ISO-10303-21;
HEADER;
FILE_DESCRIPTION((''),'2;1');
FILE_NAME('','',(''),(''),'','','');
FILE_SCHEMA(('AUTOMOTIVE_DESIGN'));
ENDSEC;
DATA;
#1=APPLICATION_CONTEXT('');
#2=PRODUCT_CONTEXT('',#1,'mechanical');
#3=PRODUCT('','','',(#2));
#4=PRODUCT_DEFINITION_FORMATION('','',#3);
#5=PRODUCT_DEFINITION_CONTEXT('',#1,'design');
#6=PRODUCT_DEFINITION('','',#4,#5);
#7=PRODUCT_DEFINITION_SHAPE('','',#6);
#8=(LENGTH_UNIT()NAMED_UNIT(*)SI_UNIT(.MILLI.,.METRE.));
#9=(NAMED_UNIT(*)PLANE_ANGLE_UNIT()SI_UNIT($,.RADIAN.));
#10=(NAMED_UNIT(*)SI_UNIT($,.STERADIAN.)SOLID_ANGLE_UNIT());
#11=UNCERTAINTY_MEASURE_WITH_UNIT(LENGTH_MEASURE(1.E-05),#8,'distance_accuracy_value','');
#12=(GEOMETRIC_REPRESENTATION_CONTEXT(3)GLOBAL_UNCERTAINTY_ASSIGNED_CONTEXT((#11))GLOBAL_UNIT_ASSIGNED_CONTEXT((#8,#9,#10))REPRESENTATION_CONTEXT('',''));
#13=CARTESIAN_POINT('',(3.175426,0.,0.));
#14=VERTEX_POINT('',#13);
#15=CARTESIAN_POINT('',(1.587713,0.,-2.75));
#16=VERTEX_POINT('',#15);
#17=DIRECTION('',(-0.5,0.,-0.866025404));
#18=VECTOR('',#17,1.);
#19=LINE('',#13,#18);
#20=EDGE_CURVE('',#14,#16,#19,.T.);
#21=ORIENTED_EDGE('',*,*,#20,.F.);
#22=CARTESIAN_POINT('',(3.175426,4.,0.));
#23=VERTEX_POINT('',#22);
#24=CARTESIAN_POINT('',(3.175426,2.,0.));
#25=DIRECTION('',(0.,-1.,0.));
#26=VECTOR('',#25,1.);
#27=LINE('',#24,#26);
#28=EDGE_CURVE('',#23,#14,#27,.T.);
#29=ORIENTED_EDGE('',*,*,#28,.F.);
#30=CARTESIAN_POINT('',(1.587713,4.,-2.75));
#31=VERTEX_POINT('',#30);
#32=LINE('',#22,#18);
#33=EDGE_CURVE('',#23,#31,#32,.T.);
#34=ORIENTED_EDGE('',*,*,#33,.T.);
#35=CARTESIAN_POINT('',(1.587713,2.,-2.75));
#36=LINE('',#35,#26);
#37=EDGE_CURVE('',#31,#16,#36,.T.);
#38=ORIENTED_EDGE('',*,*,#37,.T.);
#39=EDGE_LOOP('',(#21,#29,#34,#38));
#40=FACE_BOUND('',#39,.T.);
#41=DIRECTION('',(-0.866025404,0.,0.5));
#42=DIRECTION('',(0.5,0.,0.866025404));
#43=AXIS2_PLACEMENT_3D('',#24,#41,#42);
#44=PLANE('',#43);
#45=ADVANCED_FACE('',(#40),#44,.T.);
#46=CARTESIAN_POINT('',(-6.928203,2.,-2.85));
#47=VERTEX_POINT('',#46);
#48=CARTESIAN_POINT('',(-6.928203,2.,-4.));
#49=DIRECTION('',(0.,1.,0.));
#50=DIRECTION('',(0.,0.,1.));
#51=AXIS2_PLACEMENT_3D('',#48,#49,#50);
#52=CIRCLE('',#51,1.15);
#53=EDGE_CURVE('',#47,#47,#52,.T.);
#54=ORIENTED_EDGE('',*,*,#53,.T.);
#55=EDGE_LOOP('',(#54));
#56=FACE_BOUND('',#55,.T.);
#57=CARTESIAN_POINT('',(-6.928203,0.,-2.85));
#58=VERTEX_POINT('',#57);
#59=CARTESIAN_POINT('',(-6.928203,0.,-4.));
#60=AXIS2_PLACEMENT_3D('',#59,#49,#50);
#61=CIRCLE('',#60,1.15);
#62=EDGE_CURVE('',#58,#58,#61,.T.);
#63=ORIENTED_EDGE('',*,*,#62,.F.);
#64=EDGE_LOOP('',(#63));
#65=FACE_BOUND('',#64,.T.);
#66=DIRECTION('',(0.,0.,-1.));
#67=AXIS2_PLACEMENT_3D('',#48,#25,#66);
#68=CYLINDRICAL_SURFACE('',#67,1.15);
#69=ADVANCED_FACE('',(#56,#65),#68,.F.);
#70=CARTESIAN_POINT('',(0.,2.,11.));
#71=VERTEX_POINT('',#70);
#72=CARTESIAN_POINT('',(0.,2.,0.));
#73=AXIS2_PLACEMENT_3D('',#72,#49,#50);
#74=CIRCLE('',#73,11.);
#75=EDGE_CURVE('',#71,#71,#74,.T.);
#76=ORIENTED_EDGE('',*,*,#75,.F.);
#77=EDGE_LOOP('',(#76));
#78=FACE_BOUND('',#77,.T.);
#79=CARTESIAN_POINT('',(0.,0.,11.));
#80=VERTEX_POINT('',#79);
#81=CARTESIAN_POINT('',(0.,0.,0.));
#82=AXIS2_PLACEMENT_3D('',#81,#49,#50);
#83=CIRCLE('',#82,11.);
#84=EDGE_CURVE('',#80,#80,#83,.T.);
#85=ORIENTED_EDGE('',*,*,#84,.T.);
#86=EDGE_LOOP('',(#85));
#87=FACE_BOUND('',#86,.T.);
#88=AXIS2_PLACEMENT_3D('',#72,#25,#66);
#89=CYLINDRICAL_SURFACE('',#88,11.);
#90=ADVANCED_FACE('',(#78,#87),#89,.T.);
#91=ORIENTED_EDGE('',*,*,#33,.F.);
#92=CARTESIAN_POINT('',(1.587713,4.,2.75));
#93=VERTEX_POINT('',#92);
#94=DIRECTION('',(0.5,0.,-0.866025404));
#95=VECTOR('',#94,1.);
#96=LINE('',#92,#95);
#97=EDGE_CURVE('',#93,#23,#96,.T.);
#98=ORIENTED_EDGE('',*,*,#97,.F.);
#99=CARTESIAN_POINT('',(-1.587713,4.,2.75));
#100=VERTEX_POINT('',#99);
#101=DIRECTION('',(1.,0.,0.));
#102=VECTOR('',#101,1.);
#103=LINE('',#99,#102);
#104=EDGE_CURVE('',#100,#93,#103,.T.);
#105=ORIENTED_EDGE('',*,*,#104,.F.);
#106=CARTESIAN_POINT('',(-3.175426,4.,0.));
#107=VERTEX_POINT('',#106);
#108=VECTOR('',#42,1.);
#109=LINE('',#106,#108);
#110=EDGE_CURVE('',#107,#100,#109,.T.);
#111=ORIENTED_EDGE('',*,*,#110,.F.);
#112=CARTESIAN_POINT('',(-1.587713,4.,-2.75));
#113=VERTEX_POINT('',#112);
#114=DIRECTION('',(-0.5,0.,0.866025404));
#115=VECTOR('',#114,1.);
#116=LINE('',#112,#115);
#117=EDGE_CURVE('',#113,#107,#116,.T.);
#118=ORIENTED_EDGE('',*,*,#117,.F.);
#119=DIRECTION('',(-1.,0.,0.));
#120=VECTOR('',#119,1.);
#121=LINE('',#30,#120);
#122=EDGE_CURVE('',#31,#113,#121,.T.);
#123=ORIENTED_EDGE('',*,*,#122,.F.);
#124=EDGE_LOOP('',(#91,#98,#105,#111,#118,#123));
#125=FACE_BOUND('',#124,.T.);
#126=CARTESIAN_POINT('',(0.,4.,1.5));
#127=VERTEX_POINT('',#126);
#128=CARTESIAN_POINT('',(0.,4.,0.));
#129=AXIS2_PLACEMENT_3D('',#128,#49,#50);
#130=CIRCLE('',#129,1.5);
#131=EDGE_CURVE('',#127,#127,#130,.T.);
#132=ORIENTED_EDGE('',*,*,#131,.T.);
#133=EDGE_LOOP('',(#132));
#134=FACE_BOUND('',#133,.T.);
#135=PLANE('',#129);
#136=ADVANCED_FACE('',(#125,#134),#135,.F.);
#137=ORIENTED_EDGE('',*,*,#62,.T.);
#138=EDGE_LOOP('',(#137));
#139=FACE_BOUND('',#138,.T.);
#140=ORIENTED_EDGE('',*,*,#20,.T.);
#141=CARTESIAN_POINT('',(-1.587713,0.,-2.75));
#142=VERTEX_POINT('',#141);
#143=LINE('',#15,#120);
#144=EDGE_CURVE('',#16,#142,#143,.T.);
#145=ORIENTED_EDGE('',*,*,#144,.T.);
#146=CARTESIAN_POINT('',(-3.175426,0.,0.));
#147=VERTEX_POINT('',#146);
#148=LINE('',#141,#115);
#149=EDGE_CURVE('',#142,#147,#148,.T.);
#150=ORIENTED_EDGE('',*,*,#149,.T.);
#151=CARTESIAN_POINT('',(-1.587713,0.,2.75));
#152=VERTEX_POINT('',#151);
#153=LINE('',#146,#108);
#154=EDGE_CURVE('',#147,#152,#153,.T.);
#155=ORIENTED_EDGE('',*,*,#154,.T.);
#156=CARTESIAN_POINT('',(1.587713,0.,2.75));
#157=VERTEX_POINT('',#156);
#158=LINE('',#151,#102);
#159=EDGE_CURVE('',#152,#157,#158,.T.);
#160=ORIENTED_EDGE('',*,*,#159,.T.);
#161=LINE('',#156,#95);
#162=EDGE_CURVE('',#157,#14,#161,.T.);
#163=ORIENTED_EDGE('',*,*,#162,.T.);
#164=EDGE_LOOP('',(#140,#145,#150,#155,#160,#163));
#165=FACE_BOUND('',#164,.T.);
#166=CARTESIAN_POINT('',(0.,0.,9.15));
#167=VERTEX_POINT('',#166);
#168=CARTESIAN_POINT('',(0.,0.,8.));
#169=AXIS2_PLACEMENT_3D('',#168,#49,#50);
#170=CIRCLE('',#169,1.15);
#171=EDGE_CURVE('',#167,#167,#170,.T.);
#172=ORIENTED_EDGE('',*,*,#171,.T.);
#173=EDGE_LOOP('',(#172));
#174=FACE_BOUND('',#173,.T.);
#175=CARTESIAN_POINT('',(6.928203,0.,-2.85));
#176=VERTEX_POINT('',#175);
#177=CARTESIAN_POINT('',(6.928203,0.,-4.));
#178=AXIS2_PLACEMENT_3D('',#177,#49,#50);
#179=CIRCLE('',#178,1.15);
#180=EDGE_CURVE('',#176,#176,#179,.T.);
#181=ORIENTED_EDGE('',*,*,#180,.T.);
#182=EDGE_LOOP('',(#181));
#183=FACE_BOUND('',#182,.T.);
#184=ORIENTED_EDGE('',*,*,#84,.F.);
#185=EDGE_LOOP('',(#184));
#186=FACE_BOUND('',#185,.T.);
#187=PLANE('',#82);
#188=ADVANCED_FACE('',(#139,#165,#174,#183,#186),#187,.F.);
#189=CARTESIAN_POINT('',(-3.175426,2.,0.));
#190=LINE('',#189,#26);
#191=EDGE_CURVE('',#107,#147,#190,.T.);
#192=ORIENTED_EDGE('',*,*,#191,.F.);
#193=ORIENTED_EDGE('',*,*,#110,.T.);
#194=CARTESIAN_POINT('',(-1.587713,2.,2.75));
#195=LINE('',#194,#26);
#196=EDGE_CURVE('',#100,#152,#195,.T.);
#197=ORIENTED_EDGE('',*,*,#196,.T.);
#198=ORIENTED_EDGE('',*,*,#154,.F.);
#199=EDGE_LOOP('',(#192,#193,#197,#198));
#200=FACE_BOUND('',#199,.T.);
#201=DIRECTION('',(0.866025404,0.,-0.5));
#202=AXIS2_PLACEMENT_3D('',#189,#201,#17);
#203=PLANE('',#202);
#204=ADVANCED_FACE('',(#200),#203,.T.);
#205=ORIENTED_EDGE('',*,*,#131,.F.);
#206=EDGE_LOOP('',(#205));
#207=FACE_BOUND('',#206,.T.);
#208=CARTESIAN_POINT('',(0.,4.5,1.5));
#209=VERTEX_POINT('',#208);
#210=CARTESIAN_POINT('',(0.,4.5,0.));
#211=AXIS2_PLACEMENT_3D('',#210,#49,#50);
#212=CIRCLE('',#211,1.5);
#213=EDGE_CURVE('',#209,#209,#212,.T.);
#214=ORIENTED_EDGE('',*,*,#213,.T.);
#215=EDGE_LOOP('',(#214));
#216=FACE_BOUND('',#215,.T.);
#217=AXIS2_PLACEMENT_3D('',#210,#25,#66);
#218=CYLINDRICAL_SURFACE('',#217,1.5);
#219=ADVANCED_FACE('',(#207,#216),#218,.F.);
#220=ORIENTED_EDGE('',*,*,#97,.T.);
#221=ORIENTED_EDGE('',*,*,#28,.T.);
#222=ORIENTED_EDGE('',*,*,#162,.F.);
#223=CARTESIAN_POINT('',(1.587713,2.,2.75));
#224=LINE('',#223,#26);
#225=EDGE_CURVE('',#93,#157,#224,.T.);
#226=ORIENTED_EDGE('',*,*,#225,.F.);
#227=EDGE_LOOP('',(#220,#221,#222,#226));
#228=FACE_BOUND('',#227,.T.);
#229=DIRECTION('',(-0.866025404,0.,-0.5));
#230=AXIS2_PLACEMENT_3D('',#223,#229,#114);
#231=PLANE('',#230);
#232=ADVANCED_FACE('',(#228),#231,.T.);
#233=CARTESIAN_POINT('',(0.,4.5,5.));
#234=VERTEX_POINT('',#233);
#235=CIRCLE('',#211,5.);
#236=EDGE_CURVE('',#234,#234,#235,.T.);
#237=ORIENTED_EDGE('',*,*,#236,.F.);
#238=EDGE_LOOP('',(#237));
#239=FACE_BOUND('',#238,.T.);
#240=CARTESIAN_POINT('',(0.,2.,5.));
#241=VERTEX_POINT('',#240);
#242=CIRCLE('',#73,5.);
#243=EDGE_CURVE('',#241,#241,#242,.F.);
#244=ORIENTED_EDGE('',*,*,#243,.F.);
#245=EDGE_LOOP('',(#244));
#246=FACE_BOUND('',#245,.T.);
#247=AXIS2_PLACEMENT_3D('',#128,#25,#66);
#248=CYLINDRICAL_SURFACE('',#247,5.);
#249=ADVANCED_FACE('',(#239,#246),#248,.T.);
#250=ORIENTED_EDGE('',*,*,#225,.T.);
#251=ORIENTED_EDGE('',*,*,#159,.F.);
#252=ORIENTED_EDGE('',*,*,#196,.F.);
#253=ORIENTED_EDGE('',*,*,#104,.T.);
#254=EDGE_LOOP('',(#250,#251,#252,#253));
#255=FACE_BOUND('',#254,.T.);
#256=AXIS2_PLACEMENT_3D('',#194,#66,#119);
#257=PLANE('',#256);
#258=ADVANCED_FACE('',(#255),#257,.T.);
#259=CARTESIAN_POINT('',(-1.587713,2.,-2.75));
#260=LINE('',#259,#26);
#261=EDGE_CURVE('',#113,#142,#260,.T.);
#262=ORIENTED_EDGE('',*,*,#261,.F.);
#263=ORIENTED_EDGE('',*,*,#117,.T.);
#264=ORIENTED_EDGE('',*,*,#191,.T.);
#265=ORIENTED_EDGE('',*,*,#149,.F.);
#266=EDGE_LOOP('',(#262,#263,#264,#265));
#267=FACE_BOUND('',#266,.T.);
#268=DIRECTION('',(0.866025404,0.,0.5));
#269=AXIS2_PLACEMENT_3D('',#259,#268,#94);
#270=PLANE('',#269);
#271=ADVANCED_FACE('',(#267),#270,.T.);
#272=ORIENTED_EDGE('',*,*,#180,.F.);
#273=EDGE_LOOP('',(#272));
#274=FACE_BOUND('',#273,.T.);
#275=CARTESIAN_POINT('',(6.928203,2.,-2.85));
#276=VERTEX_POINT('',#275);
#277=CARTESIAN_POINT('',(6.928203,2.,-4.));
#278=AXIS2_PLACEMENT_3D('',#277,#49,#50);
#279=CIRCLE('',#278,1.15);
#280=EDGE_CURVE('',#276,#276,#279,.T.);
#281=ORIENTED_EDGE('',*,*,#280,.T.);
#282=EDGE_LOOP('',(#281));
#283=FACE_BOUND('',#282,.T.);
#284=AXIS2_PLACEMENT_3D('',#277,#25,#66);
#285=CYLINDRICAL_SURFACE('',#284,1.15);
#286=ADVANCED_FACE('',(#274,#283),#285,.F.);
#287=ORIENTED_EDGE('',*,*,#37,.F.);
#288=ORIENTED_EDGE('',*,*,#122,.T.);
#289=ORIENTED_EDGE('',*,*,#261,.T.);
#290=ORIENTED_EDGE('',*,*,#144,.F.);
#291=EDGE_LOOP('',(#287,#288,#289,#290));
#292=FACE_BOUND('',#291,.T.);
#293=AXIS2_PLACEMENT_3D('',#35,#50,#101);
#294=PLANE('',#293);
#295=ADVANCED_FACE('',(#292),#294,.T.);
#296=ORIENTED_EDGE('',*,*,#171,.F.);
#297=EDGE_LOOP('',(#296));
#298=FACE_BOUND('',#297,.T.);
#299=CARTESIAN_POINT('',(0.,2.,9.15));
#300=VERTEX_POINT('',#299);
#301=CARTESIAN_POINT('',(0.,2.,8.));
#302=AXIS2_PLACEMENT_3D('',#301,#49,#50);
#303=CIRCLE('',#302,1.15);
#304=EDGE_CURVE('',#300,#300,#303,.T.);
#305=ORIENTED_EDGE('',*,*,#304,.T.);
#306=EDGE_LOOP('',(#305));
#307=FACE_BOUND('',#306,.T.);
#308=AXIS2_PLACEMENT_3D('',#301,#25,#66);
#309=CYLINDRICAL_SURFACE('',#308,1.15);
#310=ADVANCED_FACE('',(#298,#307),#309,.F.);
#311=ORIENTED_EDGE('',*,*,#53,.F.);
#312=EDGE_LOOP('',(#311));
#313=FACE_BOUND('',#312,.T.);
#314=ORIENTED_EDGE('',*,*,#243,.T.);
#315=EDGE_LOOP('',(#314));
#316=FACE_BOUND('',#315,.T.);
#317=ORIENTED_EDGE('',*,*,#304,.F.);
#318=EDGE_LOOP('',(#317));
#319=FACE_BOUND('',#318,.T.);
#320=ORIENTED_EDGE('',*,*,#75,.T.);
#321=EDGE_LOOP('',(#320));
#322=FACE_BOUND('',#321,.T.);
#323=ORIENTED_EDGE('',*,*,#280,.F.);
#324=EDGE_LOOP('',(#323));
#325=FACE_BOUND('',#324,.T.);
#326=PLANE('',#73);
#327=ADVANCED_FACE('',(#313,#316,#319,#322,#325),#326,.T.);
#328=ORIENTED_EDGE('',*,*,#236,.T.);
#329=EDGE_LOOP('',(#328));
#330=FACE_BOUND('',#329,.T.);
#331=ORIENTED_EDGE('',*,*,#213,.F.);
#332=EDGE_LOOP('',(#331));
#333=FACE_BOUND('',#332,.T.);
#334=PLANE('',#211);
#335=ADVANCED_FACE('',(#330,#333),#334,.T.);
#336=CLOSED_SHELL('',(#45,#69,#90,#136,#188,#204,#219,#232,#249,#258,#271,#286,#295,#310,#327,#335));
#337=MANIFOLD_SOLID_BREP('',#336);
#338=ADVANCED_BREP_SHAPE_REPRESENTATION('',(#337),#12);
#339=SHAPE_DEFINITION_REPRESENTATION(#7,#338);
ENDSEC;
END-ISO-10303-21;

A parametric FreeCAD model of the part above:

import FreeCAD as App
import Part
import Sketcher

V = App.Vector
Q = App.Units.Quantity

doc = App.newDocument("Part")
params = doc.addObject("Spreadsheet::Sheet", "Params")
for row, (alias, value) in enumerate([
    ("sketch1_diameter", "22 mm"),
    ("sketch1_diameter2", "2.3 mm"),
    ("pad1_length", "2 mm"),
    ("sketch2_diameter", "10 mm"),
    ("pad2_length", "4 mm"),
    ("sketch3_diameter", "10 mm"),
    ("sketch3_diameter2", "3 mm"),
    ("pad3_length", "0.5 mm"),
], start=1):
    params.set(f"A{row}", alias)
    params.set(f"B{row}", "=" + value)
    params.setAlias(f"B{row}", alias)

body = doc.addObject("PartDesign::Body", "Body")

sketch1 = doc.addObject("Sketcher::SketchObject", "Sketch")
body.addObject(sketch1)
sketch1.AttachmentSupport = (doc.XZ_Plane, [""])
sketch1.MapMode = "FlatFace"
sketch1.addGeometry([
    Part.Circle(V(0, 0, 0), V(0, 0, 1), 11),
    Part.Circle(V(0, 8, 0), V(0, 0, 1), 1.1),
    Part.Circle(V(-6.9, -4, 0), V(0, 0, 1), 1.1),
    Part.LineSegment(V(1.6, -2.8, 0), V(3.2, 0, 0)),
    Part.LineSegment(V(3.2, 0, 0), V(1.6, 2.8, 0)),
    Part.LineSegment(V(1.6, 2.8, 0), V(-1.6, 2.8, 0)),
    Part.LineSegment(V(-1.6, 2.8, 0), V(-3.2, 0, 0)),
    Part.LineSegment(V(-3.2, 0, 0), V(-1.6, -2.8, 0)),
    Part.LineSegment(V(-1.6, -2.8, 0), V(1.6, -2.8, 0)),
    Part.Circle(V(6.9, -4, 0), V(0, 0, 1), 1.1),
], False)
sketch1.addConstraint([
    Sketcher.Constraint("Coincident", 3, 2, 4, 1),
    Sketcher.Constraint("Coincident", 4, 2, 5, 1),
    Sketcher.Constraint("Coincident", 5, 2, 6, 1),
    Sketcher.Constraint("Coincident", 6, 2, 7, 1),
    Sketcher.Constraint("Coincident", 7, 2, 8, 1),
    Sketcher.Constraint("Coincident", 8, 2, 3, 1),
    Sketcher.Constraint("Horizontal", 5),
    Sketcher.Constraint("Horizontal", 8),
    Sketcher.Constraint("Coincident", 0, 3, -1, 1),
    Sketcher.Constraint("Equal", 1, 2),
    Sketcher.Constraint("Equal", 2, 9),
    Sketcher.Constraint("Symmetric", 3, 2, 6, 2, -1, 1),
    Sketcher.Constraint("Symmetric", 4, 2, 7, 2, -1, 1),
    Sketcher.Constraint("Symmetric", 2, 3, 9, 3, -2),
    Sketcher.Constraint("PointOnObject", 1, 3, -2),
    Sketcher.Constraint("PointOnObject", 3, 2, -1),
    Sketcher.Constraint("Parallel", 3, 6),
    Sketcher.Constraint("Vertical", 5, 2, 7, 2),
    Sketcher.Constraint("Diameter", 0, Q("22 mm")),
    Sketcher.Constraint("Diameter", 1, Q("2.3 mm")),
    Sketcher.Constraint("Angle", 3, Q("60 deg")),
    Sketcher.Constraint("DistanceY", -1, 1, 1, 3, Q("8 mm")),
    Sketcher.Constraint("DistanceY", 2, 3, -1, 1, Q("4 mm")),
    Sketcher.Constraint("DistanceY", 7, 2, 5, 2, Q("5.5 mm")),
    Sketcher.Constraint("DistanceX", 5, 2, 5, 1, Q("3.175426 mm")),
    Sketcher.Constraint("DistanceX", 2, 3, 3, 2, Q("10.10363 mm")),
])
sketch1.setExpression("Constraints[18]", "Params.sketch1_diameter")
sketch1.setExpression("Constraints[19]", "Params.sketch1_diameter2")
pad1 = doc.addObject("PartDesign::Pad", "Pad")
body.addObject(pad1)
pad1.Profile = sketch1
pad1.setExpression("Length", "Params.pad1_length")
pad1.Reversed = True

sketch2 = doc.addObject("Sketcher::SketchObject", "Sketch001")
body.addObject(sketch2)
sketch2.AttachmentSupport = (doc.XZ_Plane, [""])
sketch2.MapMode = "FlatFace"
sketch2.AttachmentOffset = App.Placement(V(0, 0, -2), App.Rotation())
sketch2.addGeometry([
    Part.Circle(V(0, 0, 0), V(0, 0, 1), 5),
    Part.LineSegment(V(1.6, -2.8, 0), V(3.2, 0, 0)),
    Part.LineSegment(V(3.2, 0, 0), V(1.6, 2.8, 0)),
    Part.LineSegment(V(1.6, 2.8, 0), V(-1.6, 2.8, 0)),
    Part.LineSegment(V(-1.6, 2.8, 0), V(-3.2, 0, 0)),
    Part.LineSegment(V(-3.2, 0, 0), V(-1.6, -2.8, 0)),
    Part.LineSegment(V(-1.6, -2.8, 0), V(1.6, -2.8, 0)),
], False)
sketch2.addConstraint([
    Sketcher.Constraint("Coincident", 1, 2, 2, 1),
    Sketcher.Constraint("Coincident", 2, 2, 3, 1),
    Sketcher.Constraint("Coincident", 3, 2, 4, 1),
    Sketcher.Constraint("Coincident", 4, 2, 5, 1),
    Sketcher.Constraint("Coincident", 5, 2, 6, 1),
    Sketcher.Constraint("Coincident", 6, 2, 1, 1),
    Sketcher.Constraint("Horizontal", 3),
    Sketcher.Constraint("Horizontal", 6),
    Sketcher.Constraint("Coincident", 0, 3, -1, 1),
    Sketcher.Constraint("Symmetric", 1, 2, 4, 2, -1, 1),
    Sketcher.Constraint("Symmetric", 2, 2, 5, 2, -1, 1),
    Sketcher.Constraint("PointOnObject", 1, 2, -1),
    Sketcher.Constraint("Parallel", 1, 4),
    Sketcher.Constraint("Vertical", 3, 2, 5, 2),
    Sketcher.Constraint("Diameter", 0, Q("10 mm")),
    Sketcher.Constraint("Angle", 1, Q("60 deg")),
    Sketcher.Constraint("DistanceY", 5, 2, 3, 2, Q("5.5 mm")),
    Sketcher.Constraint("DistanceX", 3, 2, 3, 1, Q("3.175426 mm")),
])
sketch2.setExpression("Constraints[14]", "Params.sketch2_diameter")
pad2 = doc.addObject("PartDesign::Pad", "Pad001")
body.addObject(pad2)
pad2.Profile = sketch2
pad2.setExpression("Length", "Params.pad2_length")
pad2.Midplane = True

sketch3 = doc.addObject("Sketcher::SketchObject", "Sketch002")
body.addObject(sketch3)
sketch3.AttachmentSupport = (doc.XZ_Plane, [""])
sketch3.MapMode = "FlatFace"
sketch3.AttachmentOffset = App.Placement(V(0, 0, -4), App.Rotation())
sketch3.addGeometry([
    Part.Circle(V(0, 0, 0), V(0, 0, 1), 5),
    Part.Circle(V(0, 0, 0), V(0, 0, 1), 1.5),
], False)
sketch3.addConstraint([
    Sketcher.Constraint("Coincident", 0, 3, -1, 1),
    Sketcher.Constraint("Coincident", 1, 3, -1, 1),
    Sketcher.Constraint("Diameter", 0, Q("10 mm")),
    Sketcher.Constraint("Diameter", 1, Q("3 mm")),
])
sketch3.setExpression("Constraints[2]", "Params.sketch3_diameter")
sketch3.setExpression("Constraints[3]", "Params.sketch3_diameter2")
pad3 = doc.addObject("PartDesign::Pad", "Pad002")
body.addObject(pad3)
pad3.Profile = sketch3
pad3.setExpression("Length", "Params.pad3_length")
pad3.Reversed = True

doc.recompute()
